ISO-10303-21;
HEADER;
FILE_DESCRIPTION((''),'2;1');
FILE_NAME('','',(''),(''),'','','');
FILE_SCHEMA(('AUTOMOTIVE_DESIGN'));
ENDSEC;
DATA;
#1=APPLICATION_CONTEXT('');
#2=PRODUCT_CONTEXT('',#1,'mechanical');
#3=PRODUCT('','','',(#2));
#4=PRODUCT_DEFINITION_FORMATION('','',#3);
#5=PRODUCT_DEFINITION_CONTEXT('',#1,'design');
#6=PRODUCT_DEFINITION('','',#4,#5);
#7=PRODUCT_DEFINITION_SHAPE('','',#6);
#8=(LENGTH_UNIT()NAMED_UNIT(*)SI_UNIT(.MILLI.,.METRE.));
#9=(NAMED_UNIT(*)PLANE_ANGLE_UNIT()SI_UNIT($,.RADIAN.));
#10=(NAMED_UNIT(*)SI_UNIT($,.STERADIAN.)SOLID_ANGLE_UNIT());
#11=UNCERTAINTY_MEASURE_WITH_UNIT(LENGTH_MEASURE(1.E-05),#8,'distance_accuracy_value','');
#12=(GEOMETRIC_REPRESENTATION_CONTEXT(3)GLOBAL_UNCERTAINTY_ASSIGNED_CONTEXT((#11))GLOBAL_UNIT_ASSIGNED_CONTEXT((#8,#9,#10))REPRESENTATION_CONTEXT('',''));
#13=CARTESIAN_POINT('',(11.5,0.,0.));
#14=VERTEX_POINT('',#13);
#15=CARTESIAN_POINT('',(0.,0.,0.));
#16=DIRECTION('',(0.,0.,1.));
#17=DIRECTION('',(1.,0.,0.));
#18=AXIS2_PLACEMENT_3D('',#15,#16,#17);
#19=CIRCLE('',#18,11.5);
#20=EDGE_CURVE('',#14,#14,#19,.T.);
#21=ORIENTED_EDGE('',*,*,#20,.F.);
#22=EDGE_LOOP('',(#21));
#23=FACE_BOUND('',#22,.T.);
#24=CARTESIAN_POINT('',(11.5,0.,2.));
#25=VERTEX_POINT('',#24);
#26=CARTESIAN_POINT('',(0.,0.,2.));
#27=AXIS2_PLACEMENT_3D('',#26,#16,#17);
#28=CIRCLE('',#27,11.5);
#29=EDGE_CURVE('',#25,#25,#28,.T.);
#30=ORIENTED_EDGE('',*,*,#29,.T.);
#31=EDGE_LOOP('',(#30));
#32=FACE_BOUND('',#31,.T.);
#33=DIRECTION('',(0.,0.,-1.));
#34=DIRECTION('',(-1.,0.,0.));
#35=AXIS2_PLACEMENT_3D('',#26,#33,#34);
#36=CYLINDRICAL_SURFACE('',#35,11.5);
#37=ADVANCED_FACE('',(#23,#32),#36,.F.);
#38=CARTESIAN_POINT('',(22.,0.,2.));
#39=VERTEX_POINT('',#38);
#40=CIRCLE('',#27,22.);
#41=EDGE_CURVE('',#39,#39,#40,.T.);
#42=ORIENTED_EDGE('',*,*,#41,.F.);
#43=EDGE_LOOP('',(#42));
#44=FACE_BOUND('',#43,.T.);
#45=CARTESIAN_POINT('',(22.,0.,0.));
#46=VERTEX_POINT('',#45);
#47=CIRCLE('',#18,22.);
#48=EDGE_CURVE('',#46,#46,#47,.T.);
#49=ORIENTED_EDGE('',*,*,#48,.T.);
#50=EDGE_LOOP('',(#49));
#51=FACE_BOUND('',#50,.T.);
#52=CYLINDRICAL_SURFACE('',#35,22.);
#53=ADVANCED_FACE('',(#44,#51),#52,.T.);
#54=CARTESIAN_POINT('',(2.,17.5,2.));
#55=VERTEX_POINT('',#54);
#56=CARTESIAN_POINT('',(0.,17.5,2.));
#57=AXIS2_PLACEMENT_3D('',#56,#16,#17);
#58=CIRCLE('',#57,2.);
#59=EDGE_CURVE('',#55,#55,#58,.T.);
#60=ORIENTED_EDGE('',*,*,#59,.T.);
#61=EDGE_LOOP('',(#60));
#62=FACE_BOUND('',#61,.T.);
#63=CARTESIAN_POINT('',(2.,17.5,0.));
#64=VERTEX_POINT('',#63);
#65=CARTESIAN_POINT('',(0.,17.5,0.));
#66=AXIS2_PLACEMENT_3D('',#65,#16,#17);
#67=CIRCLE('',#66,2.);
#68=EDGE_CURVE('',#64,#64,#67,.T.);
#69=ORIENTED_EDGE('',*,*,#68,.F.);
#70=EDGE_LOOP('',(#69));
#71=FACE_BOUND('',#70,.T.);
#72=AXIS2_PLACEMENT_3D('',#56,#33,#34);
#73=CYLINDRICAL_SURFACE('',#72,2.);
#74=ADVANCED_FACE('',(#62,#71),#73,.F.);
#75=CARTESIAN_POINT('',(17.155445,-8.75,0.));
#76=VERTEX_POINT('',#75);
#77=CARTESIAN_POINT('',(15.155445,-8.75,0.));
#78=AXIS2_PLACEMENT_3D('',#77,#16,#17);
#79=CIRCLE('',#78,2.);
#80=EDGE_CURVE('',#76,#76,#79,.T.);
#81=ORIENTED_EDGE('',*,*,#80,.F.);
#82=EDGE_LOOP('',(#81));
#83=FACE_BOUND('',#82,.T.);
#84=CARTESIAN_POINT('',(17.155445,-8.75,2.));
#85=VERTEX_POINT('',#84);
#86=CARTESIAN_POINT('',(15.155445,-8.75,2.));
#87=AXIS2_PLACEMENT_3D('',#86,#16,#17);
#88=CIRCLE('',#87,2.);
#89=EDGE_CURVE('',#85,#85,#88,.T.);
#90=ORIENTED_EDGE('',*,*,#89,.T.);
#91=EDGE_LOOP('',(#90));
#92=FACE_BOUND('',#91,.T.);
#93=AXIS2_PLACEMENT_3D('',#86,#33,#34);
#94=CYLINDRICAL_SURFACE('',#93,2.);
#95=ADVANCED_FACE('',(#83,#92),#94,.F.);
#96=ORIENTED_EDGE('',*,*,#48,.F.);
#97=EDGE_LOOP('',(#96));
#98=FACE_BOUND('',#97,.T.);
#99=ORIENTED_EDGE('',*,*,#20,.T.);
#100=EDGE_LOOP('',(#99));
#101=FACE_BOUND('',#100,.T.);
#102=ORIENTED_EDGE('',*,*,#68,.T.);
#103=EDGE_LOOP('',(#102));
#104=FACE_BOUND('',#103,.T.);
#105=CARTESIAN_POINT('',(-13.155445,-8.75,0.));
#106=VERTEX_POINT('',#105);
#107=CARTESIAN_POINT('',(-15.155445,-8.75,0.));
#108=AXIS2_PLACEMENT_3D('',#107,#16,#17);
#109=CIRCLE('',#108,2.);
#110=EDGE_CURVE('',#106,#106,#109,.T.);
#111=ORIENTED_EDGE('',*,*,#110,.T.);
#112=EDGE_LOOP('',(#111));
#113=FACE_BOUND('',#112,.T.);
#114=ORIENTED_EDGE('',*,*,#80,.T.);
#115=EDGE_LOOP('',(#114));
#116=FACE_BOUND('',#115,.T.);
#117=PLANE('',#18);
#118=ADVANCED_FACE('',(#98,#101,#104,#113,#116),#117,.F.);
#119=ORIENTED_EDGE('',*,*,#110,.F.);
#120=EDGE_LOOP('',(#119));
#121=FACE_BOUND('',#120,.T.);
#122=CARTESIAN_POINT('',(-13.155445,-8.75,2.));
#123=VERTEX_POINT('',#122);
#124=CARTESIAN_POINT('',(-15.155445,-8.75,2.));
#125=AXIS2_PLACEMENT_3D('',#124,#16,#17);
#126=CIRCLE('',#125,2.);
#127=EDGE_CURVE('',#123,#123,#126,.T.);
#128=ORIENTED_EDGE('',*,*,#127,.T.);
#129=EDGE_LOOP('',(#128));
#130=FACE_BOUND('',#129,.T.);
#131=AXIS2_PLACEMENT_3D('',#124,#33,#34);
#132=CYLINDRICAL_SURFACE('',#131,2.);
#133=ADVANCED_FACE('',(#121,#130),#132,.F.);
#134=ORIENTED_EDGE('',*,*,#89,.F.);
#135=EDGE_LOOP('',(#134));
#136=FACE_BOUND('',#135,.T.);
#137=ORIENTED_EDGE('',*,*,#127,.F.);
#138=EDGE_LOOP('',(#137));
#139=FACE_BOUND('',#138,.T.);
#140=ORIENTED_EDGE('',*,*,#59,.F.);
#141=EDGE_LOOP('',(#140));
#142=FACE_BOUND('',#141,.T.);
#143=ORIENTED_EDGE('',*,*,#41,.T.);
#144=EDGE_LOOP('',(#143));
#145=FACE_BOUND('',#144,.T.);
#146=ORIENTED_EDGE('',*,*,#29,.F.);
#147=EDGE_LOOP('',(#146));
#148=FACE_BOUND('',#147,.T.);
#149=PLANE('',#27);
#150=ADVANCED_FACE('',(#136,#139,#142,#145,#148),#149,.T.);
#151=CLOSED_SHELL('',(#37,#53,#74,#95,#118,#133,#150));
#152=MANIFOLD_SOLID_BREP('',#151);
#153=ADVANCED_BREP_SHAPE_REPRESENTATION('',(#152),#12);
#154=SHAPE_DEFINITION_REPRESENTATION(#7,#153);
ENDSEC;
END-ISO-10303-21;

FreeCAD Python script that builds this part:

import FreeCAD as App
import Part
import Sketcher
Q = App.Units.Quantity

doc = App.newDocument("Part")
params = doc.addObject("Spreadsheet::Sheet", "Params")
for row, (alias, value) in enumerate([
    ("sketch1_diameter", "44 mm"),
    ("sketch1_diameter2", "4 mm"),
    ("sketch1_diameter3", "23 mm"),
    ("pad1_length", "2 mm"),
], start=1):
    params.set(f"A{row}", alias)
    params.set(f"B{row}", "=" + value)
    params.setAlias(f"B{row}", alias)

body = doc.addObject("PartDesign::Body", "Body")

sketch1 = body.newObject("Sketcher::SketchObject", "Sketch")
sketch1.AttachmentSupport = (doc.getObject("XY_Plane"), [""])
sketch1.MapMode = "FlatFace"
sketch1.addGeometry(Part.Circle(App.Vector(0, 0, 0), App.Vector(0, 0, 1), 22), False)
sketch1.addGeometry(Part.Circle(App.Vector(-15.2, -8.8, 0), App.Vector(0, 0, 1), 2), False)
sketch1.addGeometry(Part.Circle(App.Vector(15.2, -8.8, 0), App.Vector(0, 0, 1), 2), False)
sketch1.addGeometry(Part.Circle(App.Vector(0, 0, 0), App.Vector(0, 0, 1), 11.5), False)
sketch1.addGeometry(Part.Circle(App.Vector(0, 17.5, 0), App.Vector(0, 0, 1), 2), False)
sketch1.addConstraint(Sketcher.Constraint("Coincident", 0, 3, -1, 1))
sketch1.addConstraint(Sketcher.Constraint("Coincident", 3, 3, -1, 1))
sketch1.addConstraint(Sketcher.Constraint("Equal", 1, 2))
sketch1.addConstraint(Sketcher.Constraint("Equal", 2, 4))
sketch1.addConstraint(Sketcher.Constraint("Symmetric", 1, 3, 2, 3, -2))
sketch1.addConstraint(Sketcher.Constraint("PointOnObject", 4, 3, -2))
sketch1.addConstraint(Sketcher.Constraint("Diameter", 0, Q("44 mm")))
sketch1.addConstraint(Sketcher.Constraint("Diameter", 1, Q("4 mm")))
sketch1.addConstraint(Sketcher.Constraint("Diameter", 3, Q("23 mm")))
sketch1.addConstraint(Sketcher.Constraint("DistanceY", -1, 1, 4, 3, Q("17.5 mm")))
sketch1.addConstraint(Sketcher.Constraint("DistanceY", 1, 3, -1, 1, Q("8.75 mm")))
sketch1.addConstraint(Sketcher.Constraint("DistanceX", 1, 3, 2, 3, Q("30.310889 mm")))
sketch1.setExpression("Constraints[6]", "Params.sketch1_diameter")
sketch1.setExpression("Constraints[7]", "Params.sketch1_diameter2")
sketch1.setExpression("Constraints[8]", "Params.sketch1_diameter3")
pad1 = body.newObject("PartDesign::Pad", "Pad")
pad1.Profile = sketch1
pad1.setExpression("Length", "Params.pad1_length")

doc.recompute()
